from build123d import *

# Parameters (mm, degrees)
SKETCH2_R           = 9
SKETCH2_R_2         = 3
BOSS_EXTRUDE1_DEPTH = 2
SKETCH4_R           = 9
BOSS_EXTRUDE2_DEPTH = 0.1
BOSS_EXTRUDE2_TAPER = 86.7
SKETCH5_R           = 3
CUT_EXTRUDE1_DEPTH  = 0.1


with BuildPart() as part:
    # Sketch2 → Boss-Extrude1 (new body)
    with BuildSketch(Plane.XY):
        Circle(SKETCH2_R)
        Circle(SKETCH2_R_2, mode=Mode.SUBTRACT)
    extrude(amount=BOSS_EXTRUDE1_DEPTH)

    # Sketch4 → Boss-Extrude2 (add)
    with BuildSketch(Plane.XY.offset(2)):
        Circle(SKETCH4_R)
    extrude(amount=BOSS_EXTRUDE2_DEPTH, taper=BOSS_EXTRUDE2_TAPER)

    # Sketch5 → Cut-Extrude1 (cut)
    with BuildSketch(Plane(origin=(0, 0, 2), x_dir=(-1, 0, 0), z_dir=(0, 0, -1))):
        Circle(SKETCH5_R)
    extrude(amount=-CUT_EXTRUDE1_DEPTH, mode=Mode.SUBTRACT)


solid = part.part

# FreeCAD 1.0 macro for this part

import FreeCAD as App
import Part
import Sketcher

V = App.Vector

doc = App.newDocument("Part")
body = doc.addObject("PartDesign::Body", "Body")

sketch1 = doc.addObject("Sketcher::SketchObject", "Sketch")
body.addObject(sketch1)
sketch1.AttachmentSupport = (doc.XY_Plane, [""])
sketch1.MapMode = "FlatFace"
sketch1.addGeometry(Part.Circle(V(0, 0, 0), V(0, 0, 1), 9), False)
sketch1.addGeometry(Part.Circle(V(0, 0, 0), V(0, 0, 1), 3), False)
sketch1.addConstraint(Sketcher.Constraint("Coincident", 0, 3, -1, 1))
sketch1.addConstraint(Sketcher.Constraint("Coincident", 1, 3, -1, 1))
sketch1.addConstraint(Sketcher.Constraint("Diameter", 0, 18.0))
sketch1.addConstraint(Sketcher.Constraint("Diameter", 1, 6.0))
pad1 = doc.addObject("PartDesign::Pad", "Pad")
body.addObject(pad1)
pad1.Profile = sketch1
pad1.Length = 2

sketch2 = doc.addObject("Sketcher::SketchObject", "Sketch001")
body.addObject(sketch2)
sketch2.AttachmentSupport = (doc.XY_Plane, [""])
sketch2.MapMode = "FlatFace"
sketch2.AttachmentOffset = App.Placement(V(0, 0, 2), App.Rotation())
sketch2.addGeometry(Part.Circle(V(0, 0, 0), V(0, 0, 1), 9), False)
sketch2.addConstraint(Sketcher.Constraint("Coincident", 0, 3, -1, 1))
sketch2.addConstraint(Sketcher.Constraint("Diameter", 0, 18.0))
pad2 = doc.addObject("PartDesign::Pad", "Pad001")
body.addObject(pad2)
pad2.Profile = sketch2
pad2.Length = 0.1
pad2.TaperAngle = -86.7

sketch3 = doc.addObject("Sketcher::SketchObject", "Sketch002")
body.addObject(sketch3)
sketch3.AttachmentSupport = (doc.XY_Plane, [""])
sketch3.MapMode = "FlatFace"
sketch3.AttachmentOffset = App.Placement(V(0, 0, 2), App.Rotation())
sketch3.addGeometry(Part.Circle(V(0, 0, 0), V(0, 0, 1), 3), False)
sketch3.addConstraint(Sketcher.Constraint("Coincident", 0, 3, -1, 1))
sketch3.addConstraint(Sketcher.Constraint("Diameter", 0, 6.0))
pocket1 = doc.addObject("PartDesign::Pocket", "Pocket")
body.addObject(pocket1)
pocket1.Profile = sketch3
pocket1.Length = 0.1
pocket1.Reversed = True

doc.recompute()
